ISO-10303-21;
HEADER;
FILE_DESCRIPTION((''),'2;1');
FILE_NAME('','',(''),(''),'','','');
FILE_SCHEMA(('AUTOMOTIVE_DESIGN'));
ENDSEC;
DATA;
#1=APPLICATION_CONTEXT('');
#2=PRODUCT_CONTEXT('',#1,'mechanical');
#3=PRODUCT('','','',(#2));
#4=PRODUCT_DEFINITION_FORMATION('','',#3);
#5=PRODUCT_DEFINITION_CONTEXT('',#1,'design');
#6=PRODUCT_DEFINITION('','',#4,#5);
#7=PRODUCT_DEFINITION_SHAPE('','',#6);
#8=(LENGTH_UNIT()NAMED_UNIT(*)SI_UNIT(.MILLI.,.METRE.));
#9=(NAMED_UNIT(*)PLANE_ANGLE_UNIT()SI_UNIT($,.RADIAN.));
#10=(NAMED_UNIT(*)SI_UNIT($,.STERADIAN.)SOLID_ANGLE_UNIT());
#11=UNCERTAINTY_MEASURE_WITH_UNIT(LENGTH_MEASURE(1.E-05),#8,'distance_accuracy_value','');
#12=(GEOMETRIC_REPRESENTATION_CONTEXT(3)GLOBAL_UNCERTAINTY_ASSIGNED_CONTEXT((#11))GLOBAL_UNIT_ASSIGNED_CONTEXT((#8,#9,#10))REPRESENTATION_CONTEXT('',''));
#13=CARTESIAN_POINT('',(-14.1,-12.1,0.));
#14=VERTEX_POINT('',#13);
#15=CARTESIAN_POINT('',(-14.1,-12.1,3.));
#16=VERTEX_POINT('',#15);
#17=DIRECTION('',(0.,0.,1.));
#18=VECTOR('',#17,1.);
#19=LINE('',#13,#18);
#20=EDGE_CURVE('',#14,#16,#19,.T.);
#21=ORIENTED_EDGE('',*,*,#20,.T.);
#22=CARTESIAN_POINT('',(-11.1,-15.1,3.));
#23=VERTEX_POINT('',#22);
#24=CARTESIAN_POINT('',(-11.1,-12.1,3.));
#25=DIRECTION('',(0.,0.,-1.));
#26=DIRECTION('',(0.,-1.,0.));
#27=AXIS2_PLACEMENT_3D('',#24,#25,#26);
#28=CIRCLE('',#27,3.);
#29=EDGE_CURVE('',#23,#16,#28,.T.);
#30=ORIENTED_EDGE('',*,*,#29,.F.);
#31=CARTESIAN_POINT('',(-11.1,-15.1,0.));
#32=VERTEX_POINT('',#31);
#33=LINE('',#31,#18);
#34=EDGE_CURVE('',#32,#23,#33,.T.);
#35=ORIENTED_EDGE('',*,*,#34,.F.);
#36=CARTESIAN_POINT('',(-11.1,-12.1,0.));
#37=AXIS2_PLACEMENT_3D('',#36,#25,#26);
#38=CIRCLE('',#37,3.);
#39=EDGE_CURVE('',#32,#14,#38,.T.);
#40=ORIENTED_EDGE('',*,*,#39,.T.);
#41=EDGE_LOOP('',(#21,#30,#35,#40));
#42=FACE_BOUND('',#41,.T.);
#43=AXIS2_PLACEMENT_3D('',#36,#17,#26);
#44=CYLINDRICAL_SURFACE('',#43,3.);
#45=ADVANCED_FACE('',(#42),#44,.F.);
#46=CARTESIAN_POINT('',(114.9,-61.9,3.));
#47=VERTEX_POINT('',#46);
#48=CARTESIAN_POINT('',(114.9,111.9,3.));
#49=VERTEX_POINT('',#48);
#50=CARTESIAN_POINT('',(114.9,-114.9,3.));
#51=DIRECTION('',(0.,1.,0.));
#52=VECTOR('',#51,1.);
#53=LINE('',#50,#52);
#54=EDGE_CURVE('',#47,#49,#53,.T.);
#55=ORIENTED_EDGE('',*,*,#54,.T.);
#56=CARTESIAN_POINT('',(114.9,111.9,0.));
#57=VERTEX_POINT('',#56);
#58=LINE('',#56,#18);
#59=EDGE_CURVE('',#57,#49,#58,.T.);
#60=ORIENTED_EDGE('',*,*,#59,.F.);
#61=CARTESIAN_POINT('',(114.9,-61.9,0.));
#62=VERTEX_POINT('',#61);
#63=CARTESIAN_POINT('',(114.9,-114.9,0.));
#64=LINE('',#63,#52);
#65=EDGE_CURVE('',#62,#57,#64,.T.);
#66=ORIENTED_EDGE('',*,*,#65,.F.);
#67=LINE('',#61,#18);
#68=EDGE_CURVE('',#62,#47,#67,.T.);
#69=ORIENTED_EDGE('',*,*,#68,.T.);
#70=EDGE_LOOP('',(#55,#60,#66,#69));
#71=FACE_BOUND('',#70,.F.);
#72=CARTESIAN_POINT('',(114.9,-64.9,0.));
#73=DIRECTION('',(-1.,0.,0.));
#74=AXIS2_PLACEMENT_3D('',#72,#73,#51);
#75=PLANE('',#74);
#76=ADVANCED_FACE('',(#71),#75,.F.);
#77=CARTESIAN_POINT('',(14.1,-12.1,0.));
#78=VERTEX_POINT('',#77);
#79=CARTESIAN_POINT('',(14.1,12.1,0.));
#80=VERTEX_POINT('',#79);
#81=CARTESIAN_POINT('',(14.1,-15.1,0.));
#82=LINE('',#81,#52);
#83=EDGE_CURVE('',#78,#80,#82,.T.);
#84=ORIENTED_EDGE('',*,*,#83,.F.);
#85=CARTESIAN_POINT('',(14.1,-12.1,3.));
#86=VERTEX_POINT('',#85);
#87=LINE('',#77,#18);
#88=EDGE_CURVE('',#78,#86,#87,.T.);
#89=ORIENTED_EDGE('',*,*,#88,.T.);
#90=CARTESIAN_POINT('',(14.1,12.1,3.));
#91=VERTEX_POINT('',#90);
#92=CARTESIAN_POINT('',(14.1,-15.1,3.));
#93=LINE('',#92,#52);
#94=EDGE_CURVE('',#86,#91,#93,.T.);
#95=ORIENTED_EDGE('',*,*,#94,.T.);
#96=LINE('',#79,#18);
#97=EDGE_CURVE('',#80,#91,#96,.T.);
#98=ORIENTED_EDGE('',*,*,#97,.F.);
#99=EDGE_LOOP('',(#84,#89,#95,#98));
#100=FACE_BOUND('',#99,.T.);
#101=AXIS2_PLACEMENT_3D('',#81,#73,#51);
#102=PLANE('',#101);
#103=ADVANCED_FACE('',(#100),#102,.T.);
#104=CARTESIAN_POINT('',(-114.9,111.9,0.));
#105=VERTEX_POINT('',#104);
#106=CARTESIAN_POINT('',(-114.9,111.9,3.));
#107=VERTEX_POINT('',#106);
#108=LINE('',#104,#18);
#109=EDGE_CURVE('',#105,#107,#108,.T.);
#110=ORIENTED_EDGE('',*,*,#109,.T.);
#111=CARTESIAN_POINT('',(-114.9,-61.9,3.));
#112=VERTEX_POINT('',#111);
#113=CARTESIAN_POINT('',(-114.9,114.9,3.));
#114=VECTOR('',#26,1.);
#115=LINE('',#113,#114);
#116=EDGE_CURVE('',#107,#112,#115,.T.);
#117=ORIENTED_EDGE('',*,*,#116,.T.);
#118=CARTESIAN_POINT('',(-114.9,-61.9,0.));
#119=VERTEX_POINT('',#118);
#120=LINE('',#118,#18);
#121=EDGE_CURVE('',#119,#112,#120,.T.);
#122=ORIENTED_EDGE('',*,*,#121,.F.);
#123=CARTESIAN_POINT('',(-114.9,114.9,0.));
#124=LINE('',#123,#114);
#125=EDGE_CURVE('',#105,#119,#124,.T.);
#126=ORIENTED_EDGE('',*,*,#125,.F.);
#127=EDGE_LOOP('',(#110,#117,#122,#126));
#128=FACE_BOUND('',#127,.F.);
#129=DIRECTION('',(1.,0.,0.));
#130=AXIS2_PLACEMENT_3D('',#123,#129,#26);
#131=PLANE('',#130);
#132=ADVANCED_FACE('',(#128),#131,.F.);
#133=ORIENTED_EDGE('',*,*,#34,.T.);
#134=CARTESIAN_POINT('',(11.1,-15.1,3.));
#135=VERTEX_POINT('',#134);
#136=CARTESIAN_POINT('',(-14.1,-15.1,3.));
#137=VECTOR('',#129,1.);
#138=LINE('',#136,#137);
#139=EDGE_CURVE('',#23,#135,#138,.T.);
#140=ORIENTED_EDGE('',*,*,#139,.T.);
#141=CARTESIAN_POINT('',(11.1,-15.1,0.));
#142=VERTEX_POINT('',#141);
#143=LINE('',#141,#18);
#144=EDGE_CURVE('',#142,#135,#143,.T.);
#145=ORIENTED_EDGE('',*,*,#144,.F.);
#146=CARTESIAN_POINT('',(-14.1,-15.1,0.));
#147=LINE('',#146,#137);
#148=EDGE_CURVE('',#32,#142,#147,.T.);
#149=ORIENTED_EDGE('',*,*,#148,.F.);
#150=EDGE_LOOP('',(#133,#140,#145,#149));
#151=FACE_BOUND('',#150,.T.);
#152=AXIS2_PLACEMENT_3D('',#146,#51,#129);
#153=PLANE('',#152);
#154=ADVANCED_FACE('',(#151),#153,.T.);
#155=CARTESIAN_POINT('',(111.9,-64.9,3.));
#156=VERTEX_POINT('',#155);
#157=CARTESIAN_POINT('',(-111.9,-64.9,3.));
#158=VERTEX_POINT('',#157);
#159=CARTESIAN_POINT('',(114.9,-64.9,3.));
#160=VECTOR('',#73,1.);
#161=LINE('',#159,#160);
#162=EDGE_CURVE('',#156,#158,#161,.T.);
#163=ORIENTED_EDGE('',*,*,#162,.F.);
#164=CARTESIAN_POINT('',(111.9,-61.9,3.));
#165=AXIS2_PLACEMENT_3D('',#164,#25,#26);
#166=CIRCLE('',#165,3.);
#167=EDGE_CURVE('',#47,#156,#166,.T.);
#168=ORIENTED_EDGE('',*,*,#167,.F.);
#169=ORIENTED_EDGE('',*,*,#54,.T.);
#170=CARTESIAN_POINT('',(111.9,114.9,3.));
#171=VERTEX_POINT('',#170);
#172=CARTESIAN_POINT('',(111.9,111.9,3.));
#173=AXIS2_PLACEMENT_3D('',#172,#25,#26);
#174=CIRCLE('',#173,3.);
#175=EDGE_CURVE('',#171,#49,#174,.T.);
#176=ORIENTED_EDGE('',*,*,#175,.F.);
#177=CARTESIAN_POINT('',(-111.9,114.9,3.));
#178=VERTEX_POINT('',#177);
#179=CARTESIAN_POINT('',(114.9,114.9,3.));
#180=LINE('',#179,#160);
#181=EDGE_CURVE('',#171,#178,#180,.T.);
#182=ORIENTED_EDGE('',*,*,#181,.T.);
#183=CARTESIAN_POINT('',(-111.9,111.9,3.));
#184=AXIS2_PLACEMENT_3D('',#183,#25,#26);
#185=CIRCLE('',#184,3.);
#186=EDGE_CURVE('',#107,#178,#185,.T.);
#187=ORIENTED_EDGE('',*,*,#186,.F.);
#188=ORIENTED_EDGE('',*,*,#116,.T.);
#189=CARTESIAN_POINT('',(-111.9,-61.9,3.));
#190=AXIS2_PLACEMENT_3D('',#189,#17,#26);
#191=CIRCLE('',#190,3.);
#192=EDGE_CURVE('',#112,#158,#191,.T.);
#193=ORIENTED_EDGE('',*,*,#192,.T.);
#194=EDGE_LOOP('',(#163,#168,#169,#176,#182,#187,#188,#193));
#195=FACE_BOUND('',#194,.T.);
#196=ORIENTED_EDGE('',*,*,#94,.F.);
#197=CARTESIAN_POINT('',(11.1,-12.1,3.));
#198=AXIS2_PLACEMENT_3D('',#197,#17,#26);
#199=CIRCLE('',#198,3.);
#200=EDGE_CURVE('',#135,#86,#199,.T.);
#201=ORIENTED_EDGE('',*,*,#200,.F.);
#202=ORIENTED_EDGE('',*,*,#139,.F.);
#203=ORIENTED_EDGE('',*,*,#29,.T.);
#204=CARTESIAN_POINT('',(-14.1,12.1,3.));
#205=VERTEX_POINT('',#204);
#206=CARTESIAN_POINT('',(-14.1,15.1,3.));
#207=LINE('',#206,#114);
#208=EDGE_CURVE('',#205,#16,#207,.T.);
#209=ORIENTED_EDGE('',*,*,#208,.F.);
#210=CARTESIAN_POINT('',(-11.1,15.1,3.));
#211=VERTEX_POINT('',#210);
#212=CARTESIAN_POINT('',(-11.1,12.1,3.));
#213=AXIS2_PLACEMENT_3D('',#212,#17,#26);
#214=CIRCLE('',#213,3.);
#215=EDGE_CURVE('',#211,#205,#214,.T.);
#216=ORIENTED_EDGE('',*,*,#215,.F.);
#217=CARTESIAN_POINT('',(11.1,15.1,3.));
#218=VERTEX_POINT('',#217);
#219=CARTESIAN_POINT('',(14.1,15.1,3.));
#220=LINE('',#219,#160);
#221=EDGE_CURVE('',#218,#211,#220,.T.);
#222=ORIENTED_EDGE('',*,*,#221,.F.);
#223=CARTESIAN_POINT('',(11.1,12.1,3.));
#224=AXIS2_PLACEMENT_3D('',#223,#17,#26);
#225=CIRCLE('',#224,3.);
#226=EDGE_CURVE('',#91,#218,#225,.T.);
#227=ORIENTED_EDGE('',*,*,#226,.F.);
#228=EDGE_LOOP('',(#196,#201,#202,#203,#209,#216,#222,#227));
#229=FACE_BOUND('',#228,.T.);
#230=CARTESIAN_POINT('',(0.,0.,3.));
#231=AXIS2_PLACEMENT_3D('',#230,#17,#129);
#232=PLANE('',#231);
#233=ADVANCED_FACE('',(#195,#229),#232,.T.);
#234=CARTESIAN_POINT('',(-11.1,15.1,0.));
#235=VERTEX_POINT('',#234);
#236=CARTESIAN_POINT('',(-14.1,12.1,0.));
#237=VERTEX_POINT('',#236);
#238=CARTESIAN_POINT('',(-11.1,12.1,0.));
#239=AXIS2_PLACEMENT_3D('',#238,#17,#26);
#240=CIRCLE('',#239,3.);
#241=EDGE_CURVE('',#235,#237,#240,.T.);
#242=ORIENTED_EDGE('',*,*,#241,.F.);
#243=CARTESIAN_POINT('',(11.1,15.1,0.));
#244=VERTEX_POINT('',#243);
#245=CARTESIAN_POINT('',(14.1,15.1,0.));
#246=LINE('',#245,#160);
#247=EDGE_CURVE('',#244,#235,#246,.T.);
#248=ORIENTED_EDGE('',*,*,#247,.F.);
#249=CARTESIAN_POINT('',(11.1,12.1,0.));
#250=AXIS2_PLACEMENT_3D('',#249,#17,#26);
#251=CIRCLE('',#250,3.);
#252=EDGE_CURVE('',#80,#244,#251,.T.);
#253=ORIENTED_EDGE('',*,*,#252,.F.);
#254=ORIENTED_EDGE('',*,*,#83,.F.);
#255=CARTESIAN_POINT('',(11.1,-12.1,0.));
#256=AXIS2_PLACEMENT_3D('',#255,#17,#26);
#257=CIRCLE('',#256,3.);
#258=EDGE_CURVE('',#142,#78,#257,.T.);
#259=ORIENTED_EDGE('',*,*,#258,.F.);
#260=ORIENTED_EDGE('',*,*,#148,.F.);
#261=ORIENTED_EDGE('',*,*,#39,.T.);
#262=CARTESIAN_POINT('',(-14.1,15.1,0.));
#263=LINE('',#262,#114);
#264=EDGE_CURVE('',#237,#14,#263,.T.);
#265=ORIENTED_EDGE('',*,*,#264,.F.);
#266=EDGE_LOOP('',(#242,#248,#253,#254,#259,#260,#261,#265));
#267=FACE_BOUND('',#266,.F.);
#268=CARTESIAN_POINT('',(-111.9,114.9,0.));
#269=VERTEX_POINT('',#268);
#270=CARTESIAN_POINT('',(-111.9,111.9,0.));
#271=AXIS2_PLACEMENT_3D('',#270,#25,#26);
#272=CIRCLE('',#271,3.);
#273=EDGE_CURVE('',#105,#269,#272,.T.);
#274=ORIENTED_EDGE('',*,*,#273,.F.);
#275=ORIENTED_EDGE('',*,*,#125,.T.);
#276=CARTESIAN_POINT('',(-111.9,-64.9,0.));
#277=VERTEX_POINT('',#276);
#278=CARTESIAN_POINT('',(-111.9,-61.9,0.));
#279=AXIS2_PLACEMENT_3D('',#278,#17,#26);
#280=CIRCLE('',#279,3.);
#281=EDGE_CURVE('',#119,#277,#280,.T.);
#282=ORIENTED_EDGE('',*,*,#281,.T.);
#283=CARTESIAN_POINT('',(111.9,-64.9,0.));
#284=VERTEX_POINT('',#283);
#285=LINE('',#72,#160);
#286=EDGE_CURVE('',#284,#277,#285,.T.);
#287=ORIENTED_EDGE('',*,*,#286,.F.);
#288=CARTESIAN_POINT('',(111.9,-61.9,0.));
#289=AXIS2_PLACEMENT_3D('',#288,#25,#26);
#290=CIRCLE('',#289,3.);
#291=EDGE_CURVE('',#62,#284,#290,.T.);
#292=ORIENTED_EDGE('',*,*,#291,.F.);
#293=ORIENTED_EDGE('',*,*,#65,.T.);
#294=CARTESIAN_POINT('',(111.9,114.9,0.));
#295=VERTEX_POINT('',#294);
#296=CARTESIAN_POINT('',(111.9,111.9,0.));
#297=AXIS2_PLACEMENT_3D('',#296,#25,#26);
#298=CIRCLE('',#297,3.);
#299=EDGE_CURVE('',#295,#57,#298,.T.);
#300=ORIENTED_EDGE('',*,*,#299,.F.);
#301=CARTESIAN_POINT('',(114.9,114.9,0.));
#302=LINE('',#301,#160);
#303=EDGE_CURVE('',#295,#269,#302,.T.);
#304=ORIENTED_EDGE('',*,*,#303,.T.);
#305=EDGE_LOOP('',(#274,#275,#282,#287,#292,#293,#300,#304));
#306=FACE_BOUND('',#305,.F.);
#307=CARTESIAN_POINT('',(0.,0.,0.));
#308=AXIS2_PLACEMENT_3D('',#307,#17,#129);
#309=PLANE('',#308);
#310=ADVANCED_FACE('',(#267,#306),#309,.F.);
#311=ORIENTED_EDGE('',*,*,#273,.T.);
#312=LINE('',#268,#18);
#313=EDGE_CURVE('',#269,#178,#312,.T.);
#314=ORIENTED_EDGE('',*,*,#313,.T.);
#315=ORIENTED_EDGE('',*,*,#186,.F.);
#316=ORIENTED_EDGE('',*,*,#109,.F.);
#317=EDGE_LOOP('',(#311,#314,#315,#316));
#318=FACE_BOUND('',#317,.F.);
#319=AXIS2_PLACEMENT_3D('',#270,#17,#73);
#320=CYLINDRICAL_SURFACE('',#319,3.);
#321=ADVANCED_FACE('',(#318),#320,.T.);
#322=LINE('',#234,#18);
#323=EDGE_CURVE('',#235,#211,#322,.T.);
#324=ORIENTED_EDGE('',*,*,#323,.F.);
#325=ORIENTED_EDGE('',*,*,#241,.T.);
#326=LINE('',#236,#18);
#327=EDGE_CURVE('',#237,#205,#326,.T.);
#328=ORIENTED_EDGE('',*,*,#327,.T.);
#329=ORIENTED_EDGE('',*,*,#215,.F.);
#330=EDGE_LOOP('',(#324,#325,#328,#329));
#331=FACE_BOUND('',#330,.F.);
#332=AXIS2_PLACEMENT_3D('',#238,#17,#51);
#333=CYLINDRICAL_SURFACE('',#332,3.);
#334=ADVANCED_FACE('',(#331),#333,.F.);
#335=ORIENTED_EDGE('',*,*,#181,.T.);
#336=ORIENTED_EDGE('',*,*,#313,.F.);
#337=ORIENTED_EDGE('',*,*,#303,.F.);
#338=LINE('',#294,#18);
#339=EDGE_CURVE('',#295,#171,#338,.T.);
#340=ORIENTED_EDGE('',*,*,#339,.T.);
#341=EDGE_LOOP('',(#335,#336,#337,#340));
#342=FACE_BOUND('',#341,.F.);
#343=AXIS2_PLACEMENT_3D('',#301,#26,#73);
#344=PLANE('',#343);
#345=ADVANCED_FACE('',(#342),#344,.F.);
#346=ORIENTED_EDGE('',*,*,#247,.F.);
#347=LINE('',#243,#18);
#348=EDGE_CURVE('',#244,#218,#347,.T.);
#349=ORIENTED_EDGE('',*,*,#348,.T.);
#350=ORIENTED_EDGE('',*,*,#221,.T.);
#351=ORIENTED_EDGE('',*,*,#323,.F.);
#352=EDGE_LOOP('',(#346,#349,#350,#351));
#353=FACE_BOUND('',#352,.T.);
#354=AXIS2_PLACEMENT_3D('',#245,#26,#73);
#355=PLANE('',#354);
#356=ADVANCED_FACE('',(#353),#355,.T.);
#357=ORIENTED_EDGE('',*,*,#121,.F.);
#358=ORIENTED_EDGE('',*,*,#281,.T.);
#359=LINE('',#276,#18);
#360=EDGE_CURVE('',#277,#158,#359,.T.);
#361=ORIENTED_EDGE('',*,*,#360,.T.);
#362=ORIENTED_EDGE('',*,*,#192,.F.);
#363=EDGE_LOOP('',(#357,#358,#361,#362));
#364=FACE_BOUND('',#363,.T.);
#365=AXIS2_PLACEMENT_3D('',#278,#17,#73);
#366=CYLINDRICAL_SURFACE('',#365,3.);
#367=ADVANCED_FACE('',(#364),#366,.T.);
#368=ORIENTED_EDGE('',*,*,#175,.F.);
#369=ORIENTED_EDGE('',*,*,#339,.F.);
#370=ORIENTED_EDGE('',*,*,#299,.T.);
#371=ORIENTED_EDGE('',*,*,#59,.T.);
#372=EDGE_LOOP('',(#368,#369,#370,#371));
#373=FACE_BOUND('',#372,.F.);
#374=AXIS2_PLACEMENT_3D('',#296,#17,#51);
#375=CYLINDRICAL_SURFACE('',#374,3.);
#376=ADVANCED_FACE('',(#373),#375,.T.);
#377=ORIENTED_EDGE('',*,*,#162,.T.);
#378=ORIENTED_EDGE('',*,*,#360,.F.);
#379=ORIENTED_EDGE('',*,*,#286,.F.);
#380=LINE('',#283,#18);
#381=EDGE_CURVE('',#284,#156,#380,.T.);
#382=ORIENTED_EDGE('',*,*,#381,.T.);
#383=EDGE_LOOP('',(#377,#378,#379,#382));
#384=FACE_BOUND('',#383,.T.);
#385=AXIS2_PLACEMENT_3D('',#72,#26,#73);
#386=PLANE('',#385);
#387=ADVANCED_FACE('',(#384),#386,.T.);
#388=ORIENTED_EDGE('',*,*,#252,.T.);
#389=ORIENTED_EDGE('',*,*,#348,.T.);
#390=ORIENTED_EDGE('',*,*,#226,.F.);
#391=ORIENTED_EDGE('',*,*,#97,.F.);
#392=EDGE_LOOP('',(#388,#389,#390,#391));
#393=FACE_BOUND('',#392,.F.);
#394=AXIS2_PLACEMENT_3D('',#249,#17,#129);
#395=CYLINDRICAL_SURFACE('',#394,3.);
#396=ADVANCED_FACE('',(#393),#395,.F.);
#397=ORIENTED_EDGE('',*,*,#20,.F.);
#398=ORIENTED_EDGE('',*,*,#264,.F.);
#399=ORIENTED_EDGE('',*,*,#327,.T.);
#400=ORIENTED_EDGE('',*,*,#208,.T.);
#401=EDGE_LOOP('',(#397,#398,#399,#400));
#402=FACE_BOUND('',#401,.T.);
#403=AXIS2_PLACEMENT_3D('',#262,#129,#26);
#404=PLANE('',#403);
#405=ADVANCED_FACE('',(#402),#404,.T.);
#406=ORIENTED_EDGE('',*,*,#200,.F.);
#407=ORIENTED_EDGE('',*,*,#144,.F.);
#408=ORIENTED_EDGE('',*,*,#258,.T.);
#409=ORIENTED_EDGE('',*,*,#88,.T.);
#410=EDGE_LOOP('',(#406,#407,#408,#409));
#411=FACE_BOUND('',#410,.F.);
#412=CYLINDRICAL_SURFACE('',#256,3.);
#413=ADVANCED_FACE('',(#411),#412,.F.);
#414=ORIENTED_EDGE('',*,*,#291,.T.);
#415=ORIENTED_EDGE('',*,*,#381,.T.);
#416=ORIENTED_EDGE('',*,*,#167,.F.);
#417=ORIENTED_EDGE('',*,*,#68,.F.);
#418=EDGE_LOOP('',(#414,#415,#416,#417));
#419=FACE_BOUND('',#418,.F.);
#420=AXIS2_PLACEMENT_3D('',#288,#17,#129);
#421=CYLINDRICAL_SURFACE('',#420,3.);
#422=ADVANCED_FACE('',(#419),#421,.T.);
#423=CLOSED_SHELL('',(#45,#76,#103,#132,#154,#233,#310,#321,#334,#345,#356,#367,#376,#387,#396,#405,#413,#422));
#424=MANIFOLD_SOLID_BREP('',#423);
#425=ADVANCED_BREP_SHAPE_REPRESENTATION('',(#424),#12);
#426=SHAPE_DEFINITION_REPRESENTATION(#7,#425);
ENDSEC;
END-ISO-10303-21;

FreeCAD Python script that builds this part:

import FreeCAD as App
import Part
import Sketcher


def edges_at(feature, points):
    """Names of the edges that pass closest to the given points."""
    edges = feature.Shape.Edges
    near = lambda p: min(range(len(edges)), key=lambda i: edges[i].distToShape(Part.Vertex(*p))[0])
    return sorted({f"Edge{near(p) + 1}" for p in points})

doc = App.newDocument("Part")
body = doc.addObject("PartDesign::Body", "Body")

sketch1 = body.newObject("Sketcher::SketchObject", "Sketch")
sketch1.AttachmentSupport = (doc.getObject("XY_Plane"), [""])
sketch1.MapMode = "FlatFace"
sketch1.addGeometry(Part.LineSegment(App.Vector(-114.9, 114.9, 0), App.Vector(-114.9, -64.9, 0)), False)
sketch1.addGeometry(Part.LineSegment(App.Vector(-114.9, -64.9, 0), App.Vector(114.9, -64.9, 0)), False)
sketch1.addGeometry(Part.LineSegment(App.Vector(114.9, -64.9, 0), App.Vector(114.9, 114.9, 0)), False)
sketch1.addGeometry(Part.LineSegment(App.Vector(114.9, 114.9, 0), App.Vector(-114.9, 114.9, 0)), False)
sketch1.addGeometry(Part.LineSegment(App.Vector(14.1, -15.1, 0), App.Vector(-14.1, -15.1, 0)), False)
sketch1.addGeometry(Part.LineSegment(App.Vector(-14.1, -15.1, 0), App.Vector(-14.1, 15.1, 0)), False)
sketch1.addGeometry(Part.LineSegment(App.Vector(-14.1, 15.1, 0), App.Vector(14.1, 15.1, 0)), False)
sketch1.addGeometry(Part.LineSegment(App.Vector(14.1, 15.1, 0), App.Vector(14.1, -15.1, 0)), False)
sketch1.addConstraint(Sketcher.Constraint("Coincident", 0, 2, 1, 1))
sketch1.addConstraint(Sketcher.Constraint("Coincident", 1, 2, 2, 1))
sketch1.addConstraint(Sketcher.Constraint("Coincident", 2, 2, 3, 1))
sketch1.addConstraint(Sketcher.Constraint("Coincident", 3, 2, 0, 1))
sketch1.addConstraint(Sketcher.Constraint("Coincident", 4, 2, 5, 1))
sketch1.addConstraint(Sketcher.Constraint("Coincident", 5, 2, 6, 1))
sketch1.addConstraint(Sketcher.Constraint("Coincident", 6, 2, 7, 1))
sketch1.addConstraint(Sketcher.Constraint("Coincident", 7, 2, 4, 1))
sketch1.addConstraint(Sketcher.Constraint("Vertical", 0))
sketch1.addConstraint(Sketcher.Constraint("Horizontal", 1))
sketch1.addConstraint(Sketcher.Constraint("Vertical", 2))
sketch1.addConstraint(Sketcher.Constraint("Horizontal", 3))
sketch1.addConstraint(Sketcher.Constraint("Horizontal", 4))
sketch1.addConstraint(Sketcher.Constraint("Vertical", 5))
sketch1.addConstraint(Sketcher.Constraint("Horizontal", 6))
sketch1.addConstraint(Sketcher.Constraint("Vertical", 7))
sketch1.addConstraint(Sketcher.Constraint("Symmetric", 4, 2, 6, 2, -1, 1))
sketch1.addConstraint(Sketcher.Constraint("DistanceX", 1, 1, 1, 2, 229.8))
sketch1.addConstraint(Sketcher.Constraint("DistanceX", 4, 2, 4, 1, 28.2))
sketch1.addConstraint(Sketcher.Constraint("DistanceY", 0, 2, 0, 1, 179.8))
sketch1.addConstraint(Sketcher.Constraint("DistanceY", 5, 1, 5, 2, 30.2))
sketch1.addConstraint(Sketcher.Constraint("DistanceX", 0, 2, -1, 1, 114.9))
sketch1.addConstraint(Sketcher.Constraint("DistanceY", 0, 2, -1, 1, 64.9))
pad1 = body.newObject("PartDesign::Pad", "Pad")
pad1.Profile = sketch1
pad1.Length = 3
doc.recompute()

fillet = body.newObject("PartDesign::Fillet", "Fillet")
fillet.Base = (pad1, edges_at(pad1, [
    (-14.1, -15.1, 1.5),
    (-14.1, 15.1, 1.5),
    (14.1, 15.1, 1.5),
    (14.1, -15.1, 1.5),
]))
fillet.Radius = 3
doc.recompute()

fillet2 = body.newObject("PartDesign::Fillet", "Fillet001")
fillet2.Base = (fillet, edges_at(fillet, [
    (114.9, 114.9, 1.5),
    (114.9, -64.9, 1.5),
    (-114.9, -64.9, 1.5),
    (-114.9, 114.9, 1.5),
]))
fillet2.Radius = 3

doc.recompute()
